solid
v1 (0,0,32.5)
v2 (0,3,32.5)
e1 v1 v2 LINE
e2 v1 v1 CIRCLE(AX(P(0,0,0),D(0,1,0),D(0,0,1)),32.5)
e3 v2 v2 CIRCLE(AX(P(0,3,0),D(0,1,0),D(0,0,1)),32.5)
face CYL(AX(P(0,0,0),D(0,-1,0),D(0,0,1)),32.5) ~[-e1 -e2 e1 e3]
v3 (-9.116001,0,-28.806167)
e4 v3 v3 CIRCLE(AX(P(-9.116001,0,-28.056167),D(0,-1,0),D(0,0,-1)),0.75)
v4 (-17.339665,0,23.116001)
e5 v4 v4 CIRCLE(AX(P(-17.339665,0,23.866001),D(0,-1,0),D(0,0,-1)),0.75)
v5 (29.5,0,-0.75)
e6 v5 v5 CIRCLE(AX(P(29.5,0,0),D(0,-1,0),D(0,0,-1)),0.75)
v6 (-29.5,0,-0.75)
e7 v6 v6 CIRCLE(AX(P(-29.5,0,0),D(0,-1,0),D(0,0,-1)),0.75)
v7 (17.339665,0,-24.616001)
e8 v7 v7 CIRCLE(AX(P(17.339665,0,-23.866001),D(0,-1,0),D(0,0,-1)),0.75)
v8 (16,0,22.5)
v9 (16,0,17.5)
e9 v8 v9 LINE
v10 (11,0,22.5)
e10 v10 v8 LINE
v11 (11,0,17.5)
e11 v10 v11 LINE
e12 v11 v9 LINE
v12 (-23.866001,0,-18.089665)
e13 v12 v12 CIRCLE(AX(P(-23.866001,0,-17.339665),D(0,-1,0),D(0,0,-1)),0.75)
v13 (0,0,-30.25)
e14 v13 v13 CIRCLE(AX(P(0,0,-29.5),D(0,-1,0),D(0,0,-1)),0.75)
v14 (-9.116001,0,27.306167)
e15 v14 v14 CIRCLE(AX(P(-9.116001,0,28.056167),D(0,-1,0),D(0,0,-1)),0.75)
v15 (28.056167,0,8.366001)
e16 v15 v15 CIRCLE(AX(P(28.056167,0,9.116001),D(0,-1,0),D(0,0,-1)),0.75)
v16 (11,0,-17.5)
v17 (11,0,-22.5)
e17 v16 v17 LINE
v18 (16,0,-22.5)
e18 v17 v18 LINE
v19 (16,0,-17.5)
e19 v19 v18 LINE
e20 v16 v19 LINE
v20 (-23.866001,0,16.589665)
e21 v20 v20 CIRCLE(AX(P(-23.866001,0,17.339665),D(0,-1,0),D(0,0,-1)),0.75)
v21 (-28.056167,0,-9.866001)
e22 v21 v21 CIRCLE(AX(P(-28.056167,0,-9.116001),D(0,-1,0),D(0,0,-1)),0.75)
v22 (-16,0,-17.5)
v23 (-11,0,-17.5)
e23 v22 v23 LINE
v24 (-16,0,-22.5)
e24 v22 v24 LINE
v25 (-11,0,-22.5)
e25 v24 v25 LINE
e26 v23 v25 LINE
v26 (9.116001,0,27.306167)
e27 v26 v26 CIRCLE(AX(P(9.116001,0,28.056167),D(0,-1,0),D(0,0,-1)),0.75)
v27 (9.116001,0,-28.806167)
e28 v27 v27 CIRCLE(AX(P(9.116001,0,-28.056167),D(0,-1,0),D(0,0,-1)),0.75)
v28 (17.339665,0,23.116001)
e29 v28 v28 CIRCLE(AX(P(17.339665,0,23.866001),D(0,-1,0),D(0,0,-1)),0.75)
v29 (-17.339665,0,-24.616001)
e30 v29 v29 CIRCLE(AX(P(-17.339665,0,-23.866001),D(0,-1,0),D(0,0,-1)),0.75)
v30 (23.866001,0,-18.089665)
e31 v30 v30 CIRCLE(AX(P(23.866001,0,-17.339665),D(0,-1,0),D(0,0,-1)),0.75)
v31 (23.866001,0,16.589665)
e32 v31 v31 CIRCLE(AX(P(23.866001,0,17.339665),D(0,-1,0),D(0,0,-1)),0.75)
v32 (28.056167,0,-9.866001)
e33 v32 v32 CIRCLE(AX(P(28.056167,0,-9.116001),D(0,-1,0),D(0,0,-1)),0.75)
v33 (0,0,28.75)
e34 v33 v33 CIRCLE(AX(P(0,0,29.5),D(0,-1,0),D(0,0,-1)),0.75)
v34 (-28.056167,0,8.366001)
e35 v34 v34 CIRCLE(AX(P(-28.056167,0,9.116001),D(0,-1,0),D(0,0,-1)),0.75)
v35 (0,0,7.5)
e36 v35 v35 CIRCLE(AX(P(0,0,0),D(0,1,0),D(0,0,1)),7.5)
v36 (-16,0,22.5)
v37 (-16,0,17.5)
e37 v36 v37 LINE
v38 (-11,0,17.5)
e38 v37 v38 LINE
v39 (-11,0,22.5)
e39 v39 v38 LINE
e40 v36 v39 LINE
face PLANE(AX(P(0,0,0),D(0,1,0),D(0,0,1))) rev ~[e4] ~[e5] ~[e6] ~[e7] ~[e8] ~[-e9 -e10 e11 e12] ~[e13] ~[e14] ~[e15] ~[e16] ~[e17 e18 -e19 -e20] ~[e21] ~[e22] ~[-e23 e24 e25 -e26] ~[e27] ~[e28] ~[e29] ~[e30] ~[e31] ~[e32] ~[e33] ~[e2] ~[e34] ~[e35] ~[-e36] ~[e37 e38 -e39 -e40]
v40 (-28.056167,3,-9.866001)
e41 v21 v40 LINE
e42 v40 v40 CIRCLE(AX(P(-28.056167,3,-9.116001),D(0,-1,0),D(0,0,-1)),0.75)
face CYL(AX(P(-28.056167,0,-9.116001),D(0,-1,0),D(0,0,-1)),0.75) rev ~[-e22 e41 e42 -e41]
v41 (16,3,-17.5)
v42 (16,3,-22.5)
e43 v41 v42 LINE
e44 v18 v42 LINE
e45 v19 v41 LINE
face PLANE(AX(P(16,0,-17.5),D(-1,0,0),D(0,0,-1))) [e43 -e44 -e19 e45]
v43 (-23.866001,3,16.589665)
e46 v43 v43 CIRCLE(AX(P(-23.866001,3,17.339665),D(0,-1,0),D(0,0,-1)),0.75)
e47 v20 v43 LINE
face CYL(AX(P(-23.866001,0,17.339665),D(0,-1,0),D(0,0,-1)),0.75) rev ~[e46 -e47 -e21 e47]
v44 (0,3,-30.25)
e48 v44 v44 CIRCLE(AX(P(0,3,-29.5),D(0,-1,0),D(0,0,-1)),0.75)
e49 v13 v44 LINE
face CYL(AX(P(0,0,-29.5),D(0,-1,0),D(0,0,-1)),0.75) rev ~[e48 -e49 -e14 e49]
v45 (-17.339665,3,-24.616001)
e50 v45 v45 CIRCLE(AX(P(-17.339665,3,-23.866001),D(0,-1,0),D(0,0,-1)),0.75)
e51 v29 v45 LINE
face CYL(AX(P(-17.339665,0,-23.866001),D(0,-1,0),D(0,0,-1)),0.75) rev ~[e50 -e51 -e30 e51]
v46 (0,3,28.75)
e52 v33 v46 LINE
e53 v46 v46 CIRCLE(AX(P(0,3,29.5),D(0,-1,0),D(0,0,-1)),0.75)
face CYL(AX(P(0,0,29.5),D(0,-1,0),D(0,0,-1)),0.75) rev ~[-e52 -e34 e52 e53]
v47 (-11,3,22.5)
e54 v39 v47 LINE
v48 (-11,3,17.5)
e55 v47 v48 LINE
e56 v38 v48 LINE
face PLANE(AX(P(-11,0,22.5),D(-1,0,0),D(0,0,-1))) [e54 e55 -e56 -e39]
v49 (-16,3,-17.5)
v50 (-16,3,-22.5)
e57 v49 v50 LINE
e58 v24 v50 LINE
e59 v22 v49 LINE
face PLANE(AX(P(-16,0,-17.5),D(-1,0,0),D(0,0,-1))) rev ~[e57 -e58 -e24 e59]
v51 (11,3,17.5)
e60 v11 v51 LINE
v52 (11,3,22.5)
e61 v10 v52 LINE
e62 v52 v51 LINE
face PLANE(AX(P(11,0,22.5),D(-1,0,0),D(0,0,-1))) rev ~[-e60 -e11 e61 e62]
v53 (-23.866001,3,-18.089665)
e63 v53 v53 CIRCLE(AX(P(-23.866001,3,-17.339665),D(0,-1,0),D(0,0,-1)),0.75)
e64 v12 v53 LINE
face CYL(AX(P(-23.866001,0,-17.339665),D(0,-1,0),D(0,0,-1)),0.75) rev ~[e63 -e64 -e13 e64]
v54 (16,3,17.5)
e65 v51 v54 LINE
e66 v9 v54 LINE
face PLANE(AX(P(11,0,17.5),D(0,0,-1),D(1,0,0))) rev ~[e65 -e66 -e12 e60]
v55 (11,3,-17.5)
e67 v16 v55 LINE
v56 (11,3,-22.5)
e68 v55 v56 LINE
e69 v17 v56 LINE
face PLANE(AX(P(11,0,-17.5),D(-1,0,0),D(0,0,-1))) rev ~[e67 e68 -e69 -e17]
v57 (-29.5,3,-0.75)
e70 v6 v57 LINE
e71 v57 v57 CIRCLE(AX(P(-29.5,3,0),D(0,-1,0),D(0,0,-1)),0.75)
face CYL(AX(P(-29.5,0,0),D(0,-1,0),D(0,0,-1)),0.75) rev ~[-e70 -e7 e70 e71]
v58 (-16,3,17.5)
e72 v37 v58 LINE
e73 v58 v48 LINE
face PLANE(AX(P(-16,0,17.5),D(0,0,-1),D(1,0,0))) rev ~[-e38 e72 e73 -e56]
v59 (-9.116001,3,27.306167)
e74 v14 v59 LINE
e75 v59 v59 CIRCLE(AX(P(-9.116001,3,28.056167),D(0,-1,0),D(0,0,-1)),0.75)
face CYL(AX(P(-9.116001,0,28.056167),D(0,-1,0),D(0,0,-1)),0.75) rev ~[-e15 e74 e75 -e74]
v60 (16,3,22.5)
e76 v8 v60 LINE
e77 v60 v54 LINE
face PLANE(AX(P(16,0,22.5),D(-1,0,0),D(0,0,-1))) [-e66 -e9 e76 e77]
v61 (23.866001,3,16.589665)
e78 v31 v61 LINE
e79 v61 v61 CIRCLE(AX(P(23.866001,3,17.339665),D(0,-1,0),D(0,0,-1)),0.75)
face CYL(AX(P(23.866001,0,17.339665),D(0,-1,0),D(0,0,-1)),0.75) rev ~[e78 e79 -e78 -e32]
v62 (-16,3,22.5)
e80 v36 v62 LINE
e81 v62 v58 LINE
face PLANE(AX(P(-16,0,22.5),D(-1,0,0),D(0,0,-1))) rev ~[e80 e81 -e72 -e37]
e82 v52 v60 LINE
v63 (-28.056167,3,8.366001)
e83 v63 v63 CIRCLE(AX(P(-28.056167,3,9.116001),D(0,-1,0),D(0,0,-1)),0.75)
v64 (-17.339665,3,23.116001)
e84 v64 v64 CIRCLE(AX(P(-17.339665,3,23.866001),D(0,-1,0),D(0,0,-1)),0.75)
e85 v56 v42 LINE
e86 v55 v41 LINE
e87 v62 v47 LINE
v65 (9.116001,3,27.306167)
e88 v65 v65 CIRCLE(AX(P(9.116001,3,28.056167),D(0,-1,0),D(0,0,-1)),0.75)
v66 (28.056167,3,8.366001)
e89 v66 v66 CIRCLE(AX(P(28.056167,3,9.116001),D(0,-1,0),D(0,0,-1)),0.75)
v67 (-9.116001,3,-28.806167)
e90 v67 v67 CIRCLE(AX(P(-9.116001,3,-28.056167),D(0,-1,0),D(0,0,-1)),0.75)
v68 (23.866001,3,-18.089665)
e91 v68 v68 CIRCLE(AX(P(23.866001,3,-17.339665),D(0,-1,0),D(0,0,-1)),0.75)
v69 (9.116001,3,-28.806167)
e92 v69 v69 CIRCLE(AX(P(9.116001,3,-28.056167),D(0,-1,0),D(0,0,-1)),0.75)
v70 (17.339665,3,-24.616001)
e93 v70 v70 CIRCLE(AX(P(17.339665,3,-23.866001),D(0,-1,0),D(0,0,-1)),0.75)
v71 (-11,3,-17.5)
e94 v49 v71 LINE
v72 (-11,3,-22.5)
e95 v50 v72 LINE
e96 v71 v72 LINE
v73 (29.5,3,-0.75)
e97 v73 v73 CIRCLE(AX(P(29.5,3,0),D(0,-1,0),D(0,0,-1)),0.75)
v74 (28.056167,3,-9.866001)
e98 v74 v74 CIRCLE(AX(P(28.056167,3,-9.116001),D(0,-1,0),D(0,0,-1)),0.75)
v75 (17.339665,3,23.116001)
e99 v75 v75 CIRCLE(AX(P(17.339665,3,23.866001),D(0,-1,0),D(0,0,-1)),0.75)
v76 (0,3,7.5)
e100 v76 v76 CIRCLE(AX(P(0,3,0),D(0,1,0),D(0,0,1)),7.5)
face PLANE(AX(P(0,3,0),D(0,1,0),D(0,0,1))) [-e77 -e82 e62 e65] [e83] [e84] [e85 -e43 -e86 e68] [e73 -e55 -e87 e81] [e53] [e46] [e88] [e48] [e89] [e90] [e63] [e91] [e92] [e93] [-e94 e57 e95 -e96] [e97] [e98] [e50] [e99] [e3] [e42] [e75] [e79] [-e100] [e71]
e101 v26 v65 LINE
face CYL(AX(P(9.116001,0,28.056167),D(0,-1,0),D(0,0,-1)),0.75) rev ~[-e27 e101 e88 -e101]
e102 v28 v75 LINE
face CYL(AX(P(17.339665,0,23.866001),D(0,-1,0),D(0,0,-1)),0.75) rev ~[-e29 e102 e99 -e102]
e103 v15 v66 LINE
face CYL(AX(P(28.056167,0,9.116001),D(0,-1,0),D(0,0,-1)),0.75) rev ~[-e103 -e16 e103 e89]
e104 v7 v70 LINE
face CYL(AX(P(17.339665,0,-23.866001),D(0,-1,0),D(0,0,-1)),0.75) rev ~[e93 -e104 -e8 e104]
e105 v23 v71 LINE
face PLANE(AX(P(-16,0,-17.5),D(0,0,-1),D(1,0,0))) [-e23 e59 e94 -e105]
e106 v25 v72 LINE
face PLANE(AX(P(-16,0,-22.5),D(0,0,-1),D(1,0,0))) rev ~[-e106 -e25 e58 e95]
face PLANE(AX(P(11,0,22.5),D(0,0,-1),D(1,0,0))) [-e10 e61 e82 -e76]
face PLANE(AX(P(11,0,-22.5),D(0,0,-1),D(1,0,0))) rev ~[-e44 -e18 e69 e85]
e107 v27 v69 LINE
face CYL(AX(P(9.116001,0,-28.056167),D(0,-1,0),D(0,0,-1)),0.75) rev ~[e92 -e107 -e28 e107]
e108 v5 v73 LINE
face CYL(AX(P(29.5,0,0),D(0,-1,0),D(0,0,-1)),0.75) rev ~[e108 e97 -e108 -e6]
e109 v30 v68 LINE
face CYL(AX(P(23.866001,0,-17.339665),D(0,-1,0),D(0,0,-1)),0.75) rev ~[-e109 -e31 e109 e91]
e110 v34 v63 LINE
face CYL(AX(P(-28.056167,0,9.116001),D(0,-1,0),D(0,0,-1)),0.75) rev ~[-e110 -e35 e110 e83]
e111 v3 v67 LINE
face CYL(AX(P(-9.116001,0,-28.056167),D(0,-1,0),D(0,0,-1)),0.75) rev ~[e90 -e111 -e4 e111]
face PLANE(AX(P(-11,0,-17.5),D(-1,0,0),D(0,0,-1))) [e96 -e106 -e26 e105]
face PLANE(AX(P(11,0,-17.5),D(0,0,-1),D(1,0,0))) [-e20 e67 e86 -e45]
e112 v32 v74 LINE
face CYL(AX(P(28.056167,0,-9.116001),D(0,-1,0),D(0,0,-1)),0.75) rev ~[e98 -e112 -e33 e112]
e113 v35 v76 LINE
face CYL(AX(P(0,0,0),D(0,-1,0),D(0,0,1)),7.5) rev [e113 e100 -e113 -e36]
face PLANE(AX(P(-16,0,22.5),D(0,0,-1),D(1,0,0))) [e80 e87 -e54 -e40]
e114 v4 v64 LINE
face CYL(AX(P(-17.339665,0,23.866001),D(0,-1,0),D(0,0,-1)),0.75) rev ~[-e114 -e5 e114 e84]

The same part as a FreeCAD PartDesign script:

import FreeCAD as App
import Part
import Sketcher
Q = App.Units.Quantity


def add_polygon(sketch, points):
    """Adds a closed chain of lines whose ends are joined by coincident constraints."""
    first, n = sketch.GeometryCount, len(points)
    for a, b in zip(points, points[1:] + points[:1]):
        sketch.addGeometry(Part.LineSegment(App.Vector(*a, 0), App.Vector(*b, 0)), False)
    for i in range(n):
        sketch.addConstraint(Sketcher.Constraint("Coincident", first + i, 2, first + (i + 1) % n, 1))

doc = App.newDocument("Part")
body = doc.addObject("PartDesign::Body", "Body")

# Sketch on XZ plane
sketch1 = body.newObject("Sketcher::SketchObject", "Sketch")
sketch1.AttachmentSupport = (doc.getObject("XZ_Plane"), [""])
sketch1.MapMode = "FlatFace"
sketch1.addGeometry(Part.Circle(App.Vector(0, 0, 0), App.Vector(0, 0, 1), 32.5), False)  # 0
add_polygon(sketch1, [(-11, -17.5), (-16, -17.5), (-16, -22.5), (-11, -22.5)])  # lines 1-4
add_polygon(sketch1, [(-11, 22.5), (-16, 22.5), (-16, 17.5), (-11, 17.5)])  # lines 5-8
sketch1.addGeometry(Part.Circle(App.Vector(0, 0, 0), App.Vector(0, 0, 1), 7.5), False)  # 9
add_polygon(sketch1, [(16, -17.5), (11, -17.5), (11, -22.5), (16, -22.5)])  # lines 10-13
add_polygon(sketch1, [(16, 22.5), (11, 22.5), (11, 17.5), (16, 17.5)])  # lines 14-17
sketch1.addConstraint([
    Sketcher.Constraint("Horizontal", 1),
    Sketcher.Constraint("Vertical", 2),
    Sketcher.Constraint("Horizontal", 3),
    Sketcher.Constraint("Vertical", 4),
    Sketcher.Constraint("Horizontal", 5),
    Sketcher.Constraint("Vertical", 6),
    Sketcher.Constraint("Horizontal", 7),
    Sketcher.Constraint("Vertical", 8),
    Sketcher.Constraint("Horizontal", 10),
    Sketcher.Constraint("Vertical", 11),
    Sketcher.Constraint("Horizontal", 12),
    Sketcher.Constraint("Vertical", 13),
    Sketcher.Constraint("Horizontal", 14),
    Sketcher.Constraint("Vertical", 15),
    Sketcher.Constraint("Horizontal", 16),
    Sketcher.Constraint("Vertical", 17),
    Sketcher.Constraint("Coincident", 0, 3, -1, 1),
    Sketcher.Constraint("Coincident", 9, 3, -1, 1),
    Sketcher.Constraint("Symmetric", 7, 2, 10, 2, -1, 1),
    Sketcher.Constraint("Symmetric", 5, 2, 12, 2, -1, 1),
    Sketcher.Constraint("Symmetric", 3, 2, 14, 2, -1, 1),
    Sketcher.Constraint("Symmetric", 1, 2, 16, 2, -1, 1),
    Sketcher.Constraint("Symmetric", 4, 2, 10, 2, -2),
    Sketcher.Constraint("Symmetric", 2, 2, 12, 2, -2),
    Sketcher.Constraint("Equal", 16, 2),
    Sketcher.Constraint("Diameter", 0, Q("65 mm")),
    Sketcher.Constraint("Diameter", 9, Q("15 mm")),
    Sketcher.Constraint("DistanceX", 1, 2, 1, 1, Q("5 mm")),
    Sketcher.Constraint("DistanceX", 1, 2, -1, 1, Q("16 mm")),
    Sketcher.Constraint("DistanceY", 1, 2, 5, 2, Q("40 mm")),
])
pad1 = body.newObject("PartDesign::Pad", "Pad")
pad1.Profile = sketch1
pad1.Length = 3
pad1.Reversed = True

# Sketch on XZ plane
sketch2 = body.newObject("Sketcher::SketchObject", "Sketch001")
sketch2.AttachmentSupport = (doc.getObject("XZ_Plane"), [""])
sketch2.MapMode = "FlatFace"
sketch2.addGeometry([
    Part.Circle(App.Vector(0, -29.5, 0), App.Vector(0, 0, 1), 0.75),  # 0
    Part.Circle(App.Vector(-9.116001, -28.056167, 0), App.Vector(0, 0, 1), 0.75),  # 1
    Part.Circle(App.Vector(-17.339665, -23.866001, 0), App.Vector(0, 0, 1), 0.75),  # 2
    Part.Circle(App.Vector(-23.866001, -17.339665, 0), App.Vector(0, 0, 1), 0.75),  # 3
    Part.Circle(App.Vector(-28.056167, -9.116001, 0), App.Vector(0, 0, 1), 0.75),  # 4
    Part.Circle(App.Vector(-29.5, 0, 0), App.Vector(0, 0, 1), 0.75),  # 5
    Part.Circle(App.Vector(-28.056167, 9.116001, 0), App.Vector(0, 0, 1), 0.75),  # 6
    Part.Circle(App.Vector(-23.866001, 17.339665, 0), App.Vector(0, 0, 1), 0.75),  # 7
    Part.Circle(App.Vector(-17.339665, 23.866001, 0), App.Vector(0, 0, 1), 0.75),  # 8
    Part.Circle(App.Vector(-9.116001, 28.056167, 0), App.Vector(0, 0, 1), 0.75),  # 9
    Part.Circle(App.Vector(0, 29.5, 0), App.Vector(0, 0, 1), 0.75),  # 10
    Part.Circle(App.Vector(9.116001, 28.056167, 0), App.Vector(0, 0, 1), 0.75),  # 11
    Part.Circle(App.Vector(17.339665, 23.866001, 0), App.Vector(0, 0, 1), 0.75),  # 12
    Part.Circle(App.Vector(23.866001, 17.339665, 0), App.Vector(0, 0, 1), 0.75),  # 13
    Part.Circle(App.Vector(28.056167, 9.116001, 0), App.Vector(0, 0, 1), 0.75),  # 14
    Part.Circle(App.Vector(29.5, 0, 0), App.Vector(0, 0, 1), 0.75),  # 15
    Part.Circle(App.Vector(28.056167, -9.116001, 0), App.Vector(0, 0, 1), 0.75),  # 16
    Part.Circle(App.Vector(23.866001, -17.339665, 0), App.Vector(0, 0, 1), 0.75),  # 17
    Part.Circle(App.Vector(17.339665, -23.866001, 0), App.Vector(0, 0, 1), 0.75),  # 18
    Part.Circle(App.Vector(9.116001, -28.056167, 0), App.Vector(0, 0, 1), 0.75),  # 19
], False)
sketch2.addConstraint([
    Sketcher.Constraint("Equal", 0, 1),
    Sketcher.Constraint("Equal", 1, 2),
    Sketcher.Constraint("Equal", 2, 3),
    Sketcher.Constraint("Equal", 3, 4),
    Sketcher.Constraint("Equal", 4, 5),
    Sketcher.Constraint("Equal", 5, 6),
    Sketcher.Constraint("Equal", 6, 7),
    Sketcher.Constraint("Equal", 7, 8),
    Sketcher.Constraint("Equal", 8, 9),
    Sketcher.Constraint("Equal", 9, 10),
    Sketcher.Constraint("Equal", 10, 11),
    Sketcher.Constraint("Equal", 11, 12),
    Sketcher.Constraint("Equal", 12, 13),
    Sketcher.Constraint("Equal", 13, 14),
    Sketcher.Constraint("Equal", 14, 15),
    Sketcher.Constraint("Equal", 15, 16),
    Sketcher.Constraint("Equal", 16, 17),
    Sketcher.Constraint("Equal", 17, 18),
    Sketcher.Constraint("Equal", 18, 19),
    Sketcher.Constraint("Symmetric", 0, 3, 10, 3, -1, 1),
    Sketcher.Constraint("Symmetric", 1, 3, 11, 3, -1, 1),
    Sketcher.Constraint("Symmetric", 2, 3, 12, 3, -1, 1),
    Sketcher.Constraint("Symmetric", 3, 3, 13, 3, -1, 1),
    Sketcher.Constraint("Symmetric", 4, 3, 14, 3, -1, 1),
    Sketcher.Constraint("Symmetric", 5, 3, 15, 3, -1, 1),
    Sketcher.Constraint("Symmetric", 6, 3, 16, 3, -1, 1),
    Sketcher.Constraint("Symmetric", 7, 3, 17, 3, -1, 1),
    Sketcher.Constraint("Symmetric", 8, 3, 18, 3, -1, 1),
    Sketcher.Constraint("Symmetric", 9, 3, 19, 3, -1, 1),
    Sketcher.Constraint("Symmetric", 9, 3, 11, 3, -2),
    Sketcher.Constraint("Symmetric", 8, 3, 12, 3, -2),
    Sketcher.Constraint("Symmetric", 7, 3, 13, 3, -2),
    Sketcher.Constraint("Symmetric", 6, 3, 14, 3, -2),
    Sketcher.Constraint("PointOnObject", 0, 3, -2),
    Sketcher.Constraint("PointOnObject", 5, 3, -1),
    Sketcher.Constraint("Diameter", 0, Q("1.5 mm")),
    Sketcher.Constraint("DistanceY", 0, 3, -1, 1, Q("29.5 mm")),
    Sketcher.Constraint("DistanceX", 5, 3, -1, 1, Q("29.5 mm")),
    Sketcher.Constraint("DistanceX", 3, 3, 1, 3, Q("14.75 mm")),
    Sketcher.Constraint("DistanceY", 2, 3, 4, 3, Q("14.75 mm")),
    Sketcher.Constraint("DistanceX", 1, 3, -1, 1, Q("9.116001 mm")),
    Sketcher.Constraint("DistanceY", 2, 3, -1, 1, Q("23.866001 mm")),
    Sketcher.Constraint("DistanceY", 1, 3, 6, 3, Q("37.172169 mm")),
    Sketcher.Constraint("DistanceY", 3, 3, 7, 3, Q("34.67933 mm")),
    Sketcher.Constraint("DistanceX", 6, 3, 11, 3, Q("37.172169 mm")),
    Sketcher.Constraint("DistanceX", 8, 3, 12, 3, Q("34.67933 mm")),
])
pocket1 = body.newObject("PartDesign::Pocket", "Pocket")
pocket1.Profile = sketch2
pocket1.Type = "ThroughAll"

doc.recompute()
